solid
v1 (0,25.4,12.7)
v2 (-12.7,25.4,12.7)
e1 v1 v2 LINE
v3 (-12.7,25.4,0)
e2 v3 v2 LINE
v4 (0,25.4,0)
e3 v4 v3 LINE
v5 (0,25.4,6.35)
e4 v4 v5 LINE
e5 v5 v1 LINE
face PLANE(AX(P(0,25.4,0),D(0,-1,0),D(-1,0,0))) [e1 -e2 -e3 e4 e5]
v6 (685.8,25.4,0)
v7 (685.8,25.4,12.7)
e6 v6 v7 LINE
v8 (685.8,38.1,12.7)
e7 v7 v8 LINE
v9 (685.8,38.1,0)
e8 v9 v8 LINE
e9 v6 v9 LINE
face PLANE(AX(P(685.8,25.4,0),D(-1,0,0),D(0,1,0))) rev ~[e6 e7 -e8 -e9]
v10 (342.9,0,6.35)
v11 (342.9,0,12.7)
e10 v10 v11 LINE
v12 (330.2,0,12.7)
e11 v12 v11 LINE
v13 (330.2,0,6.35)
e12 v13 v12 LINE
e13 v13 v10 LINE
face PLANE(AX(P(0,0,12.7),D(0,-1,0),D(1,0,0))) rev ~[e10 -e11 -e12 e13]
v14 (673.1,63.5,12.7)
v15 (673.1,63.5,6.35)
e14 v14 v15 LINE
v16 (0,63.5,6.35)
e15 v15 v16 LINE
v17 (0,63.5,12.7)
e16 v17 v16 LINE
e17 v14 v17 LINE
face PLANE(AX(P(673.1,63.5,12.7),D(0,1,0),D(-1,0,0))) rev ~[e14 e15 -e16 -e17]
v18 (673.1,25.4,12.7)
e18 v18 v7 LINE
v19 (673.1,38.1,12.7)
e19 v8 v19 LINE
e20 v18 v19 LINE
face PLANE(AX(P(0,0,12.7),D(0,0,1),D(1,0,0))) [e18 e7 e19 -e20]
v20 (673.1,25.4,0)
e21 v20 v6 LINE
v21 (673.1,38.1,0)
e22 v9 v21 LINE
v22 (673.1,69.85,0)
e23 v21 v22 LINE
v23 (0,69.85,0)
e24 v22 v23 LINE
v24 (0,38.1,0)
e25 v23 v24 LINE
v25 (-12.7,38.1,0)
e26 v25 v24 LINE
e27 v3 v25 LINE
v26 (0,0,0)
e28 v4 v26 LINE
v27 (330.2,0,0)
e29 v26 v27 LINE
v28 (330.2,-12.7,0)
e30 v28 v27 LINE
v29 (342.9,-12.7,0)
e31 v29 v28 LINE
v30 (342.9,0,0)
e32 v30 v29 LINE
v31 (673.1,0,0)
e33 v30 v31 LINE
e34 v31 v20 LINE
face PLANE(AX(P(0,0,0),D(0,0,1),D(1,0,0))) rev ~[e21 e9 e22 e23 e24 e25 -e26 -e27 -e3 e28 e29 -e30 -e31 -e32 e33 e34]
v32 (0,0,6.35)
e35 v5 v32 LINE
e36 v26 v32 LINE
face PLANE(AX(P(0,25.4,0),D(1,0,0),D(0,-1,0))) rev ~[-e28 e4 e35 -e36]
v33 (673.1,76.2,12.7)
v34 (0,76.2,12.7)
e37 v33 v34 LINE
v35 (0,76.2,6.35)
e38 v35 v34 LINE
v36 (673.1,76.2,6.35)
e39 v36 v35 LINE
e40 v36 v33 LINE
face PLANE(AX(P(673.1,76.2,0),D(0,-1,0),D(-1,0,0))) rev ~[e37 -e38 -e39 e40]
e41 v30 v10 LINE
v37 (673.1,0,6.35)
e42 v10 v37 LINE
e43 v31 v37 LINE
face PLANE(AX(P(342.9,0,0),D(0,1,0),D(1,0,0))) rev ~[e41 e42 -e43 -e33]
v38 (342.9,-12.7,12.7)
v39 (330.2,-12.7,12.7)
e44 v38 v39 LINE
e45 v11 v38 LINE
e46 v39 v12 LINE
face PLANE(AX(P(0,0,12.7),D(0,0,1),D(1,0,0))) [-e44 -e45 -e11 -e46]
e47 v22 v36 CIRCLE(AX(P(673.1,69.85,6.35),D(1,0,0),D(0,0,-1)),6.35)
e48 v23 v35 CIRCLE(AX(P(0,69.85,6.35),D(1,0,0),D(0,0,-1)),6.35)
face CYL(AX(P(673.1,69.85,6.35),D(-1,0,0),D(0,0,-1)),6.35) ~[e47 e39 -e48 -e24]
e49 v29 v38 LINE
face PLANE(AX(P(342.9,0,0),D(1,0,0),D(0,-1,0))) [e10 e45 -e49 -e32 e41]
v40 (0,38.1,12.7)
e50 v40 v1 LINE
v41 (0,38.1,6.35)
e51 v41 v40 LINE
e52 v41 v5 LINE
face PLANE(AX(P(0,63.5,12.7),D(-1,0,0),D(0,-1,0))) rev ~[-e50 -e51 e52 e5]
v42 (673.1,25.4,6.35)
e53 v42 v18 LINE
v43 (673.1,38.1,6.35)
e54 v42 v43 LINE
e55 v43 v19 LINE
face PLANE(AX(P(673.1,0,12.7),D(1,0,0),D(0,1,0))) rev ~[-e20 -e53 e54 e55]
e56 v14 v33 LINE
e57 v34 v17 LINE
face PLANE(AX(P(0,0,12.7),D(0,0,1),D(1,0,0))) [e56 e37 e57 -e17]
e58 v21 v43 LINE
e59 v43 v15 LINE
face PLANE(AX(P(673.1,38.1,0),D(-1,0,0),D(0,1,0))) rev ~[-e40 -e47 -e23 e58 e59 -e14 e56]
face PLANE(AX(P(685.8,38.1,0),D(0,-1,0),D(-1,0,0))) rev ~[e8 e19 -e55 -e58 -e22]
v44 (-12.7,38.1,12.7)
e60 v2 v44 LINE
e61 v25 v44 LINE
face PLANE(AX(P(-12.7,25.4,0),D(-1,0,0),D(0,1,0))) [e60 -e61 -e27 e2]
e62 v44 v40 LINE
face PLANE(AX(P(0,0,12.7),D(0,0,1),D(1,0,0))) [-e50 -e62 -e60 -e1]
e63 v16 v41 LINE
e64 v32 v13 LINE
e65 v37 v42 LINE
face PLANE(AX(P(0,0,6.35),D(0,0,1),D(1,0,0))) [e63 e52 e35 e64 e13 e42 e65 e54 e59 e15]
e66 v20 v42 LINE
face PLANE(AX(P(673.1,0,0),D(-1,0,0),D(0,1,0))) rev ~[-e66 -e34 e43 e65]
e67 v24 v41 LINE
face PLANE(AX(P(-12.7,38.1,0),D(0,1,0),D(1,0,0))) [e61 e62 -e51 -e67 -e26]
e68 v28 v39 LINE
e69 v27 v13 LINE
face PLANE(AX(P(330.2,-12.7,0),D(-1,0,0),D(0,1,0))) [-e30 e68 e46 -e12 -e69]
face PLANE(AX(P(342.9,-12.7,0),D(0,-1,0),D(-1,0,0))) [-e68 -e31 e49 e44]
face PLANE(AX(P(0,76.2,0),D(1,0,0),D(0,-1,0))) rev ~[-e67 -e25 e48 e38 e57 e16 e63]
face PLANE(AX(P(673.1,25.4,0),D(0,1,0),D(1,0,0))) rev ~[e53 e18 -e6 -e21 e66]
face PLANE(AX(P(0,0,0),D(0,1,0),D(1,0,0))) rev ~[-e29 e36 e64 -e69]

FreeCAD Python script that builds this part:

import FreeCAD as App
import Part
import Sketcher
Q = App.Units.Quantity


def edges_at(feature, points):
    """Names of the edges that pass closest to the given points."""
    edges = feature.Shape.Edges
    near = lambda p: min(range(len(edges)), key=lambda i: edges[i].distToShape(Part.Vertex(*p))[0])
    return sorted({f"Edge{near(p) + 1}" for p in points})


def add_polygon(sketch, points):
    """Adds a closed chain of lines whose ends are joined by coincident constraints."""
    first, n = sketch.GeometryCount, len(points)
    for a, b in zip(points, points[1:] + points[:1]):
        sketch.addGeometry(Part.LineSegment(App.Vector(*a, 0), App.Vector(*b, 0)), False)
    for i in range(n):
        sketch.addConstraint(Sketcher.Constraint("Coincident", first + i, 2, first + (i + 1) % n, 1))

doc = App.newDocument("Part")
body = doc.addObject("PartDesign::Body", "Body")

# Sketch on XY plane
sketch1 = doc.addObject("Sketcher::SketchObject", "Sketch")
body.addObject(sketch1)
sketch1.AttachmentSupport = (doc.XY_Plane, [""])
sketch1.MapMode = "FlatFace"
add_polygon(sketch1, [(673, 38), (673, 76), (0, 76), (0, 38), (-13, 38), (-13, 25), (0, 25), (0, 0), (330, 0), (330, -13), (343, -13), (343, 0), (673, 0), (673, 25), (686, 25), (686, 38)])  # lines 0-15
sketch1.addConstraint([
    Sketcher.Constraint("Vertical", 0),
    Sketcher.Constraint("Horizontal", 1),
    Sketcher.Constraint("Vertical", 2),
    Sketcher.Constraint("Horizontal", 3),
    Sketcher.Constraint("Vertical", 4),
    Sketcher.Constraint("Horizontal", 5),
    Sketcher.Constraint("Vertical", 6),
    Sketcher.Constraint("Horizontal", 7),
    Sketcher.Constraint("Vertical", 8),
    Sketcher.Constraint("Horizontal", 9),
    Sketcher.Constraint("Vertical", 10),
    Sketcher.Constraint("Horizontal", 11),
    Sketcher.Constraint("Vertical", 12),
    Sketcher.Constraint("Horizontal", 13),
    Sketcher.Constraint("Vertical", 14),
    Sketcher.Constraint("Horizontal", 15),
    Sketcher.Constraint("Coincident", 6, 2, -1, 1),
    Sketcher.Constraint("PointOnObject", 1, 2, -2),
    Sketcher.Constraint("PointOnObject", 10, 2, -1),
    Sketcher.Constraint("Horizontal", 5, 2, 12, 2),
    Sketcher.Constraint("Horizontal", 3, 2, 14, 2),
    Sketcher.Constraint("Vertical", 0, 2, 11, 2),
    Sketcher.Constraint("Equal", 5, 9),
    Sketcher.Constraint("Equal", 7, 11),
    Sketcher.Constraint("Equal", 9, 13),
    Sketcher.Constraint("Equal", 15, 4),
    Sketcher.Constraint("Equal", 4, 8),
    Sketcher.Constraint("DistanceY", 6, 2, 6, 1, Q("1 in")),
    Sketcher.Constraint("DistanceX", 1, 2, 1, 1, Q("26.5 in")),
    Sketcher.Constraint("DistanceX", 3, 2, 3, 1, Q("0.5 in")),
    Sketcher.Constraint("DistanceY", -1, 1, 0, 2, Q("3 in")),
])
pad1 = doc.addObject("PartDesign::Pad", "Pad")
body.addObject(pad1)
pad1.Profile = sketch1
pad1.Length = Q("0.5 in")

# Sketch on XY plane
sketch2 = doc.addObject("Sketcher::SketchObject", "Sketch001")
body.addObject(sketch2)
sketch2.AttachmentSupport = (doc.XY_Plane, [""])
sketch2.MapMode = "FlatFace"
sketch2.AttachmentOffset = App.Placement(App.Vector(0, 0, 0.5 * 25.4), App.Rotation())
add_polygon(sketch2, [(0, 64), (0, 0), (673, 0), (673, 64)])  # lines 0-3
sketch2.addConstraint([
    Sketcher.Constraint("Vertical", 0),
    Sketcher.Constraint("Horizontal", 1),
    Sketcher.Constraint("Vertical", 2),
    Sketcher.Constraint("Horizontal", 3),
    Sketcher.Constraint("Coincident", 0, 2, -1, 1),
    Sketcher.Constraint("DistanceX", 1, 1, 1, 2, Q("26.5 in")),
    Sketcher.Constraint("DistanceY", 0, 2, 0, 1, Q("2.5 in")),
])
pocket1 = doc.addObject("PartDesign::Pocket", "Pocket")
body.addObject(pocket1)
pocket1.Profile = sketch2
pocket1.Length = Q("0.25 in")
doc.recompute()

fillet = doc.addObject("PartDesign::Fillet", "Fillet")
body.addObject(fillet)
fillet.Base = (pocket1, edges_at(pocket1, [(336.55, 76.2, 0)]))
fillet.Radius = Q("0.25 in")

doc.recompute()
